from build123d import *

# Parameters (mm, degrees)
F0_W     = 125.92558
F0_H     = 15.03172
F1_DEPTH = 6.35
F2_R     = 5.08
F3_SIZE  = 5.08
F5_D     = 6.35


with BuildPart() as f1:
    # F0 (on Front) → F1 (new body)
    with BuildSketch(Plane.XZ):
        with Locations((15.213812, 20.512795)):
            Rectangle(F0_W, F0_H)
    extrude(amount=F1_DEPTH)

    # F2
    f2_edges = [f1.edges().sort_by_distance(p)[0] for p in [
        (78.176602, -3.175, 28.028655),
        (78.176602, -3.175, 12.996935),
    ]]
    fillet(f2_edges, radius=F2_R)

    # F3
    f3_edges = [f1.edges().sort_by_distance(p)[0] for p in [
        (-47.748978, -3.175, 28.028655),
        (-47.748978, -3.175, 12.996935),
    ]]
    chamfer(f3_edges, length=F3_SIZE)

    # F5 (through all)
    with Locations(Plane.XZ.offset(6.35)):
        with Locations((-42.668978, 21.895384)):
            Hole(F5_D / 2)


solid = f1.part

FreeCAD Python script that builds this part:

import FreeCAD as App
import Part
import Sketcher
Q = App.Units.Quantity


def edges_at(feature, points):
    """Names of the edges that pass closest to the given points."""
    edges = feature.Shape.Edges
    near = lambda p: min(range(len(edges)), key=lambda i: edges[i].distToShape(Part.Vertex(*p))[0])
    return sorted({f"Edge{near(p) + 1}" for p in points})


def add_polygon(sketch, points):
    """Adds a closed chain of lines whose ends are joined by coincident constraints."""
    first, n = sketch.GeometryCount, len(points)
    for a, b in zip(points, points[1:] + points[:1]):
        sketch.addGeometry(Part.LineSegment(App.Vector(*a, 0), App.Vector(*b, 0)), False)
    for i in range(n):
        sketch.addConstraint(Sketcher.Constraint("Coincident", first + i, 2, first + (i + 1) % n, 1))

doc = App.newDocument("Part")
body = doc.addObject("PartDesign::Body", "Body")

sketch1 = doc.addObject("Sketcher::SketchObject", "Sketch")
body.addObject(sketch1)
sketch1.AttachmentSupport = (doc.XZ_Plane, [""])
sketch1.MapMode = "FlatFace"
add_polygon(sketch1, [(-48, 28), (-48, 13), (78, 13), (78, 28)])
sketch1.addConstraint([
    Sketcher.Constraint("Vertical", 0),
    Sketcher.Constraint("Horizontal", 1),
    Sketcher.Constraint("Vertical", 2),
    Sketcher.Constraint("Horizontal", 3),
    Sketcher.Constraint("DistanceX", 1, 1, 1, 2, Q("4.9577 in")),
    Sketcher.Constraint("DistanceY", 0, 2, 0, 1, Q("0.5918 in")),
    Sketcher.Constraint("DistanceX", 0, 2, -1, 1, 47.748978),
    Sketcher.Constraint("DistanceY", -1, 1, 0, 2, 12.996935),
])
pad1 = doc.addObject("PartDesign::Pad", "Pad")
body.addObject(pad1)
pad1.Profile = sketch1
pad1.Length = Q("0.25 in")
doc.recompute()

fillet = doc.addObject("PartDesign::Fillet", "Fillet")
body.addObject(fillet)
fillet.Base = (pad1, edges_at(pad1, [(78.177, -3.175, 28.029), (78.177, -3.175, 12.997)]))
fillet.Radius = Q("0.2 in")
doc.recompute()

chamfer = doc.addObject("PartDesign::Chamfer", "Chamfer")
body.addObject(chamfer)
chamfer.Base = (fillet, edges_at(fillet, [(-47.749, -3.175, 28.029), (-47.749, -3.175, 12.997)]))
chamfer.Size = Q("0.2 in")

sketch2 = doc.addObject("Sketcher::SketchObject", "Sketch001")
body.addObject(sketch2)
sketch2.AttachmentSupport = (doc.XZ_Plane, [""])
sketch2.MapMode = "FlatFace"
sketch2.AttachmentOffset = App.Placement(App.Vector(0, 0, 0.25 * 25.4), App.Rotation())
sketch2.addGeometry(Part.Circle(App.Vector(-42.7, 21.9, 0), App.Vector(0, 0, 1), 3.2), False)
sketch2.addConstraint([
    Sketcher.Constraint("Diameter", 0, Q("0.25 in")),
    Sketcher.Constraint("DistanceX", 0, 3, -1, 1, 42.668978),
    Sketcher.Constraint("DistanceY", -1, 1, 0, 3, 21.895384),
])
doc.recompute()
hole = doc.addObject("PartDesign::Hole", "Hole")
body.addObject(hole)
hole.Profile = sketch2
hole.ThreadType = "None"
hole.Diameter = Q("0.25 in")
hole.DepthType = "ThroughAll"

doc.recompute()
